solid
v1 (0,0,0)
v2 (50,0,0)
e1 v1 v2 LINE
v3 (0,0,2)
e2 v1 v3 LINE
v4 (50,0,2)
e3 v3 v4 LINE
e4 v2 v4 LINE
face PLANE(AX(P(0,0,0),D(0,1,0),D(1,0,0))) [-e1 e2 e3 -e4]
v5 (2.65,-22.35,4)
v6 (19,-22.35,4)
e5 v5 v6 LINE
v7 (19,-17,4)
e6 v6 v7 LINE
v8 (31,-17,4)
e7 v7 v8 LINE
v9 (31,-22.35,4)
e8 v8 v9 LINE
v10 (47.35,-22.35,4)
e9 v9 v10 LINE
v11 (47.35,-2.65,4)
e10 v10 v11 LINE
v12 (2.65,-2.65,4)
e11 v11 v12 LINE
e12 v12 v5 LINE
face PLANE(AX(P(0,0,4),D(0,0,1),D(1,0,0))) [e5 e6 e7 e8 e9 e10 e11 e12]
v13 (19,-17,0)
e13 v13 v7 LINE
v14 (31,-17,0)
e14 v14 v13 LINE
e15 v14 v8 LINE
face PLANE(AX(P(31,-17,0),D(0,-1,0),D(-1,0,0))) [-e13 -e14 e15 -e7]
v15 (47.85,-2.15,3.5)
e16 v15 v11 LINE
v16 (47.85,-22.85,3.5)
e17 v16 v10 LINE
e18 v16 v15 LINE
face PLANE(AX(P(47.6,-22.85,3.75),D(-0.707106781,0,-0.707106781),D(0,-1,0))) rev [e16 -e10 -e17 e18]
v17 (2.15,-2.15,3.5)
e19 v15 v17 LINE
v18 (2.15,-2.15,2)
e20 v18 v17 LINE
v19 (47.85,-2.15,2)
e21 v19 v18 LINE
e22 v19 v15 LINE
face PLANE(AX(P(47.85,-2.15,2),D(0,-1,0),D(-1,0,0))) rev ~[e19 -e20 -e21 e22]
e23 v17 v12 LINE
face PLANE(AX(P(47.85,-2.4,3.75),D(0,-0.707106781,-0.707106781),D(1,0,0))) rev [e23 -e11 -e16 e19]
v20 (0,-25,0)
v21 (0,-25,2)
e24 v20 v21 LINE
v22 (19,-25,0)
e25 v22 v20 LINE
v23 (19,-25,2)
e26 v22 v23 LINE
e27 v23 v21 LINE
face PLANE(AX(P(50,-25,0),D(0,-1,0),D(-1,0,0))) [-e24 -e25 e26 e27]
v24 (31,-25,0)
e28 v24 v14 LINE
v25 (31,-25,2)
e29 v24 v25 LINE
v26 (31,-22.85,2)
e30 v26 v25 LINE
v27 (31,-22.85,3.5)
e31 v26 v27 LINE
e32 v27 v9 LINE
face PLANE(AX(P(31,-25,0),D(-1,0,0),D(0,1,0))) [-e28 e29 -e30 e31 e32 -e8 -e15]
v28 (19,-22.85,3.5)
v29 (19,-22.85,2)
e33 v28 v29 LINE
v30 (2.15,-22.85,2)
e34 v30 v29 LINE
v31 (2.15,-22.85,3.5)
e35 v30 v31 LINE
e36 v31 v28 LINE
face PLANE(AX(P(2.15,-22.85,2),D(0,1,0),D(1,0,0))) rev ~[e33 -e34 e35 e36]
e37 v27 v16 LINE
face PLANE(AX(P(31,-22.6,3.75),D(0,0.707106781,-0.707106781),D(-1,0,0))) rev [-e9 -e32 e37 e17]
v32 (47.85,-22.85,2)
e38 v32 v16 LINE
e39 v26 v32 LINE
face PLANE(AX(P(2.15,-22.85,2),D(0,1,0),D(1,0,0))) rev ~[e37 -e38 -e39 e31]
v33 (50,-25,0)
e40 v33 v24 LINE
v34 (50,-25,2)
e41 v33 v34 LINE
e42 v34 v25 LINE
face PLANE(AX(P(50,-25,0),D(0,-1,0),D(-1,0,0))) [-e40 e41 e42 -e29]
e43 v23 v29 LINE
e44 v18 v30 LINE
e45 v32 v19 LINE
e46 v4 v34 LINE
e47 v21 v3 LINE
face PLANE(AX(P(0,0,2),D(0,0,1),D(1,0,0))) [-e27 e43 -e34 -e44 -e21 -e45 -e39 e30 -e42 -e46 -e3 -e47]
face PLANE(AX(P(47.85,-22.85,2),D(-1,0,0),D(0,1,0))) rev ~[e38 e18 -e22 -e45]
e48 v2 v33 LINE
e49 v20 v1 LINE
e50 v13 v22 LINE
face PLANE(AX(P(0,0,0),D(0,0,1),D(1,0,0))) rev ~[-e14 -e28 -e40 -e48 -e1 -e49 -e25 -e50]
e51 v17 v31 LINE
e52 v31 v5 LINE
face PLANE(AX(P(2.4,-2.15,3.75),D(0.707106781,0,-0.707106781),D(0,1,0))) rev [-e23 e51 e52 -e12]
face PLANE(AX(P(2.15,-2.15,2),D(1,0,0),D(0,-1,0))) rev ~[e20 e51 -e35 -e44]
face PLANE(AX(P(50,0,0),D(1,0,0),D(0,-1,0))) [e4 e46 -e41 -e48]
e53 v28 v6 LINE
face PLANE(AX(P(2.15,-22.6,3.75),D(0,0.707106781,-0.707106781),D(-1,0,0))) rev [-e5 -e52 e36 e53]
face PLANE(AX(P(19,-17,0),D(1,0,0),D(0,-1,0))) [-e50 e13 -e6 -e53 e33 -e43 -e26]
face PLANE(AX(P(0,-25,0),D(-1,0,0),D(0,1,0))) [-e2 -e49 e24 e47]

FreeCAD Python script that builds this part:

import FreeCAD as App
import Part
import Sketcher

V = App.Vector
Q = App.Units.Quantity


def edges_at(feature, points):
    """Names of the edges that pass closest to the given points."""
    edges = feature.Shape.Edges
    near = lambda p: min(range(len(edges)), key=lambda i: edges[i].distToShape(Part.Vertex(*p))[0])
    return sorted({f"Edge{near(p) + 1}" for p in points})

doc = App.newDocument("Part")
body = doc.addObject("PartDesign::Body", "Body")

# Sketch on XY plane
sketch1 = body.newObject("Sketcher::SketchObject", "Sketch")
sketch1.AttachmentSupport = (doc.getObject("XY_Plane"), [""])
sketch1.MapMode = "FlatFace"
sketch1.addGeometry([
    Part.LineSegment(V(50, 0, 0), V(0, 0, 0)),
    Part.LineSegment(V(0, 0, 0), V(0, -25, 0)),
    Part.LineSegment(V(0, -25, 0), V(50, -25, 0)),
    Part.LineSegment(V(50, -25, 0), V(50, 0, 0)),
], False)
sketch1.addConstraint([
    Sketcher.Constraint("Coincident", 0, 2, 1, 1),
    Sketcher.Constraint("Coincident", 1, 2, 2, 1),
    Sketcher.Constraint("Coincident", 2, 2, 3, 1),
    Sketcher.Constraint("Coincident", 3, 2, 0, 1),
    Sketcher.Constraint("Horizontal", 0),
    Sketcher.Constraint("Vertical", 1),
    Sketcher.Constraint("Horizontal", 2),
    Sketcher.Constraint("Vertical", 3),
    Sketcher.Constraint("Coincident", 0, 2, -1, 1),
    Sketcher.Constraint("DistanceX", 0, 2, 0, 1, Q("50 mm")),
    Sketcher.Constraint("DistanceY", 1, 2, 1, 1, Q("25 mm")),
])
pad1 = body.newObject("PartDesign::Pad", "Pad")
pad1.Profile = sketch1
pad1.Length = 2

# Sketch on XY plane
sketch2 = body.newObject("Sketcher::SketchObject", "Sketch001")
sketch2.AttachmentSupport = (doc.getObject("XY_Plane"), [""])
sketch2.MapMode = "FlatFace"
sketch2.AttachmentOffset = App.Placement(V(0, 0, 2), App.Rotation())
sketch2.addGeometry([
    Part.LineSegment(V(48, -23, 0), V(48, -2, 0)),
    Part.LineSegment(V(48, -2, 0), V(2, -2, 0)),
    Part.LineSegment(V(2, -2, 0), V(2, -23, 0)),
    Part.LineSegment(V(2, -23, 0), V(48, -23, 0)),
], False)
sketch2.addConstraint([
    Sketcher.Constraint("Coincident", 0, 2, 1, 1),
    Sketcher.Constraint("Coincident", 1, 2, 2, 1),
    Sketcher.Constraint("Coincident", 2, 2, 3, 1),
    Sketcher.Constraint("Coincident", 3, 2, 0, 1),
    Sketcher.Constraint("Vertical", 0),
    Sketcher.Constraint("Horizontal", 1),
    Sketcher.Constraint("Vertical", 2),
    Sketcher.Constraint("Horizontal", 3),
    Sketcher.Constraint("DistanceX", 1, 2, 1, 1, Q("45.7 mm")),
    Sketcher.Constraint("DistanceY", 0, 1, 0, 2, Q("20.7 mm")),
    Sketcher.Constraint("DistanceY", 0, 2, -1, 1, Q("2.15 mm")),
    Sketcher.Constraint("DistanceX", -1, 1, 1, 2, Q("2.15 mm")),
])
pad2 = body.newObject("PartDesign::Pad", "Pad001")
pad2.Profile = sketch2
pad2.Length = 2

# Sketch on XY plane
sketch3 = body.newObject("Sketcher::SketchObject", "Sketch002")
sketch3.AttachmentSupport = (doc.getObject("XY_Plane"), [""])
sketch3.MapMode = "FlatFace"
sketch3.addGeometry([
    Part.LineSegment(V(31, -25, 0), V(19, -25, 0)),
    Part.LineSegment(V(19, -25, 0), V(19, -17, 0)),
    Part.LineSegment(V(19, -17, 0), V(31, -17, 0)),
    Part.LineSegment(V(31, -17, 0), V(31, -25, 0)),
], False)
sketch3.addConstraint([
    Sketcher.Constraint("Coincident", 0, 2, 1, 1),
    Sketcher.Constraint("Coincident", 1, 2, 2, 1),
    Sketcher.Constraint("Coincident", 2, 2, 3, 1),
    Sketcher.Constraint("Coincident", 3, 2, 0, 1),
    Sketcher.Constraint("Horizontal", 0),
    Sketcher.Constraint("Vertical", 1),
    Sketcher.Constraint("Horizontal", 2),
    Sketcher.Constraint("Vertical", 3),
    Sketcher.Constraint("DistanceX", 0, 2, 0, 1, Q("12 mm")),
    Sketcher.Constraint("DistanceY", 1, 1, 1, 2, Q("8 mm")),
    Sketcher.Constraint("DistanceX", -1, 1, 0, 2, Q("19 mm")),
    Sketcher.Constraint("DistanceY", 0, 2, -1, 1, Q("25 mm")),
])
pocket1 = body.newObject("PartDesign::Pocket", "Pocket")
pocket1.Profile = sketch3
pocket1.Type = "ThroughAll"
pocket1.Reversed = True
doc.recompute()

chamfer = body.newObject("PartDesign::Chamfer", "Chamfer")
chamfer.Base = (pocket1, edges_at(pocket1, [
    (25, -2.15, 4),
    (47.85, -12.5, 4),
    (39.425, -22.85, 4),
    (10.575, -22.85, 4),
    (2.15, -12.5, 4),
]))
chamfer.Size = 0.5

doc.recompute()
